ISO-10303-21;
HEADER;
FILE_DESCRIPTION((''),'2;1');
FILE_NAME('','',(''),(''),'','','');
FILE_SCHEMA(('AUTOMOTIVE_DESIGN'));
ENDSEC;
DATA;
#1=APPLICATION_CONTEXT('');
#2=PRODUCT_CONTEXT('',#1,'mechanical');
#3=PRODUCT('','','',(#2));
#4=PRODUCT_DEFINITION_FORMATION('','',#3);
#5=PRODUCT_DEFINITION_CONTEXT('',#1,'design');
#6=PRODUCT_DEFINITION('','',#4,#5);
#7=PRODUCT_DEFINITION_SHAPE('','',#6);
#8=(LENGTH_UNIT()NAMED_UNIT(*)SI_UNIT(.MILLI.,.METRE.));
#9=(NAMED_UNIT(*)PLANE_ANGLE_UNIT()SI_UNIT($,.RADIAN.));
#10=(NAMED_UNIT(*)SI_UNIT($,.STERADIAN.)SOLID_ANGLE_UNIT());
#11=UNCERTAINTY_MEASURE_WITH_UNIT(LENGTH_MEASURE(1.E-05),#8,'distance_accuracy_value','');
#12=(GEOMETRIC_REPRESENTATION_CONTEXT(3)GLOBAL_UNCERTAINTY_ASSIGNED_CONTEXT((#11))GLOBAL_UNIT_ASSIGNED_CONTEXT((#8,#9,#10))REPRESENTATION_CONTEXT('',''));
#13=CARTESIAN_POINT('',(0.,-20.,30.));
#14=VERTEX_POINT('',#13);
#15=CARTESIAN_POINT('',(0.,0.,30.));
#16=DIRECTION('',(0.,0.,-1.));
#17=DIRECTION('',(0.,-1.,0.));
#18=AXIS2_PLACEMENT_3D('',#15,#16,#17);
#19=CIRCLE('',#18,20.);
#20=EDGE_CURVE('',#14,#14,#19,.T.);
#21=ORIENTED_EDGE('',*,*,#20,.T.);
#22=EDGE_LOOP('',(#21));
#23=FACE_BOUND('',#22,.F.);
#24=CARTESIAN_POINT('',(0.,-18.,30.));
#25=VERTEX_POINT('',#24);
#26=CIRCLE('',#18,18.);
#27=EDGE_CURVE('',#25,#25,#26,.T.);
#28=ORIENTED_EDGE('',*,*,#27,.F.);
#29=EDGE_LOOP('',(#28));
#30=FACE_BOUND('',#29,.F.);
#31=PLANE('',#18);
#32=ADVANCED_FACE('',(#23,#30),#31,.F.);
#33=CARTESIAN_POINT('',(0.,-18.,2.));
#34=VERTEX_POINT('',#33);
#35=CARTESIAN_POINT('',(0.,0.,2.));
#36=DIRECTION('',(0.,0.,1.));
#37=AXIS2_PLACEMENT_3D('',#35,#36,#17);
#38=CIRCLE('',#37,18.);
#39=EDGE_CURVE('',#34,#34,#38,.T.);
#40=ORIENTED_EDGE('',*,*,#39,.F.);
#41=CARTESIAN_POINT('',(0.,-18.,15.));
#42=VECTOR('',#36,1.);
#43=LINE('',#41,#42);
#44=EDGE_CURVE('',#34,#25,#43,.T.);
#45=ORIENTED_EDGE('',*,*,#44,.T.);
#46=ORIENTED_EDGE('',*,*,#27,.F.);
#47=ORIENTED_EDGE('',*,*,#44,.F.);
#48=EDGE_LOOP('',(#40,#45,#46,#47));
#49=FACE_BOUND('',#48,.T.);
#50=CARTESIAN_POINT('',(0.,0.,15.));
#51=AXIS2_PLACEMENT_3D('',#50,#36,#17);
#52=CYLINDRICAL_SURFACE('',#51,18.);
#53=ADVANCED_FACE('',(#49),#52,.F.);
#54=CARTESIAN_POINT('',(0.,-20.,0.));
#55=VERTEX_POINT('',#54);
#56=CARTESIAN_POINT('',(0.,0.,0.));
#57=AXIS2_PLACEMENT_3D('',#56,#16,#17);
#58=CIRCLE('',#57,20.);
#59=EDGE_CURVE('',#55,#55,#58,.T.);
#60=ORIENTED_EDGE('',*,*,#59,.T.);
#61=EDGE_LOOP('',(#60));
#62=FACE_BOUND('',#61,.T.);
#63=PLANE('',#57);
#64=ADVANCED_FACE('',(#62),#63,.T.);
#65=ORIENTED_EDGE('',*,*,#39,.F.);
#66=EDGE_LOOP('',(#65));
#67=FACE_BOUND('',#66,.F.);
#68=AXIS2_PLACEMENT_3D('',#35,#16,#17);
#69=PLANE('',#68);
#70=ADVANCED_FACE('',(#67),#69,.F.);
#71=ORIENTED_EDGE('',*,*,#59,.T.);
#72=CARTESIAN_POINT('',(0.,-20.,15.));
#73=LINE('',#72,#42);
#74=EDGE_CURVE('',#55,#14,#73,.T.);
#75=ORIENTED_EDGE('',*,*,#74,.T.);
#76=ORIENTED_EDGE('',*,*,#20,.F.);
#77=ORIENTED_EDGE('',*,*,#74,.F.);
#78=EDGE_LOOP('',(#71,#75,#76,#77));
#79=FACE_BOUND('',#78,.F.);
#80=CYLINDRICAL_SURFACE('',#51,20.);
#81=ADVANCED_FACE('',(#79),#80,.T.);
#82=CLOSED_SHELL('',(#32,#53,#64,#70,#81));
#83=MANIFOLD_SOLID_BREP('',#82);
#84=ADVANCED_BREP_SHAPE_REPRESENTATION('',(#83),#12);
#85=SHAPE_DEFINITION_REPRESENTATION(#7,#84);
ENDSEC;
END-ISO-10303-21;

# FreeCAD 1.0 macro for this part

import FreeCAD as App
import Part
import Sketcher
Q = App.Units.Quantity


def faces_at(feature, points):
    """Names of the faces that lie closest to the given points."""
    faces = feature.Shape.Faces
    near = lambda p: min(range(len(faces)), key=lambda i: faces[i].distToShape(Part.Vertex(*p))[0])
    return sorted({f"Face{near(p) + 1}" for p in points})


def add_polygon(sketch, points):
    """Adds a closed chain of lines whose ends are joined by coincident constraints."""
    first, n = sketch.GeometryCount, len(points)
    for a, b in zip(points, points[1:] + points[:1]):
        sketch.addGeometry(Part.LineSegment(App.Vector(*a, 0), App.Vector(*b, 0)), False)
    for i in range(n):
        sketch.addConstraint(Sketcher.Constraint("Coincident", first + i, 2, first + (i + 1) % n, 1))

doc = App.newDocument("Part")
body = doc.addObject("PartDesign::Body", "Body")

# Sketch on YZ plane
sketch1 = body.newObject("Sketcher::SketchObject", "Sketch")
sketch1.AttachmentSupport = (doc.getObject("YZ_Plane"), [""])
sketch1.MapMode = "FlatFace"
add_polygon(sketch1, [(-20, 30), (-20, 0), (0, 0), (0, 30)])  # lines 0-3
sketch1.addConstraint([
    Sketcher.Constraint("Vertical", 0),
    Sketcher.Constraint("Horizontal", 1),
    Sketcher.Constraint("Vertical", 2),
    Sketcher.Constraint("Horizontal", 3),
    Sketcher.Constraint("Coincident", 1, 2, -1, 1),
    Sketcher.Constraint("DistanceX", 1, 1, 1, 2, Q("20 mm")),
    Sketcher.Constraint("DistanceY", 0, 2, 0, 1, Q("30 mm")),
])
revolution = body.newObject("PartDesign::Revolution", "Revolution")
revolution.Profile = sketch1
revolution.ReferenceAxis = (sketch1, ["V_Axis"])
revolution.Angle = 360
doc.recompute()

thickness = body.newObject("PartDesign::Thickness", "Thickness")
thickness.Base = (revolution, faces_at(revolution, [(0, 0, 30)]))
thickness.Value = 2
thickness.Reversed = True
thickness.Join = "Arc"

doc.recompute()
